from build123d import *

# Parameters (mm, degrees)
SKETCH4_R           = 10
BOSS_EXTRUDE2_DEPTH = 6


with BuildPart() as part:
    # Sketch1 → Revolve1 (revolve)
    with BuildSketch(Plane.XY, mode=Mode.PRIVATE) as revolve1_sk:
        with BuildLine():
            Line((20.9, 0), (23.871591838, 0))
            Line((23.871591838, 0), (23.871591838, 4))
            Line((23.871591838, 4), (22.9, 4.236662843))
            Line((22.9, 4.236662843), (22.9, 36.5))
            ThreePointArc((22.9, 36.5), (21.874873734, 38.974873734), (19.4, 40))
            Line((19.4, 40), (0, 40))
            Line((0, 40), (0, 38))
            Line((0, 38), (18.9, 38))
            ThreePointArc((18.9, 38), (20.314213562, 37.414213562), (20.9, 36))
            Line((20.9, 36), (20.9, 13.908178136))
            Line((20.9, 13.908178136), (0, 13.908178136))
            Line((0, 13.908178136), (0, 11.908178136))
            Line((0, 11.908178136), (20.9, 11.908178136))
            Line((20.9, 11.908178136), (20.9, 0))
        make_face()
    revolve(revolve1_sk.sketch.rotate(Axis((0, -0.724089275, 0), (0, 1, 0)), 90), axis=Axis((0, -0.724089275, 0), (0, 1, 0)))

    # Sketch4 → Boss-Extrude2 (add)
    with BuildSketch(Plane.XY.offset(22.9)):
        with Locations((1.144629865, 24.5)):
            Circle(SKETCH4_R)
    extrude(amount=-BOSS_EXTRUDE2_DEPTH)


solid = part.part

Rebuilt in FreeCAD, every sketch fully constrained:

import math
import FreeCAD as App
import Part
import Sketcher
from FreeCAD import Vector
Q = App.Units.Quantity

doc = App.newDocument("Part")
params = doc.addObject("Spreadsheet::Sheet", "Params")
for row, (alias, value) in enumerate([
    ("sketch1_radius", "2 mm"),
    ("sketch1_radius2", "3.5 mm"),
    ("sketch1_height", "4 mm"),
    ("sketch1_height2", "2 mm"),
    ("sketch1_length", "1 mm"),
    ("revolution_angle", "360 deg"),
    ("sketch2_diameter", "20 mm"),
    ("pad1_length", "6 mm"),
], start=1):
    params.set(f"A{row}", alias)
    params.set(f"B{row}", "=" + value)
    params.setAlias(f"B{row}", alias)

body = doc.addObject("PartDesign::Body", "Body")

sketch1 = doc.addObject("Sketcher::SketchObject", "Sketch")
body.addObject(sketch1)
sketch1.AttachmentSupport = (doc.XY_Plane, [""])
sketch1.MapMode = "FlatFace"
sketch1.addGeometry([
    Part.LineSegment(Vector(20.9, 0, 0), Vector(23.9, 0, 0)),
    Part.LineSegment(Vector(23.9, 0, 0), Vector(23.9, 4, 0)),
    Part.LineSegment(Vector(23.9, 4, 0), Vector(22.9, 4.2, 0)),
    Part.LineSegment(Vector(22.9, 4.2, 0), Vector(22.9, 36.5, 0)),
    Part.ArcOfCircle(Part.Circle(Vector(19.4, 36.5, 0), Vector(0, 0, 1), 3.5), math.radians(0), math.radians(90)),
    Part.LineSegment(Vector(19.4, 40, 0), Vector(0, 40, 0)),
    Part.LineSegment(Vector(0, 40, 0), Vector(0, 38, 0)),
    Part.LineSegment(Vector(0, 38, 0), Vector(18.9, 38, 0)),
    Part.ArcOfCircle(Part.Circle(Vector(18.9, 36, 0), Vector(0, 0, 1), 2), math.radians(0), math.radians(90)),
    Part.LineSegment(Vector(20.9, 36, 0), Vector(20.9, 13.9, 0)),
    Part.LineSegment(Vector(20.9, 13.9, 0), Vector(0, 13.9, 0)),
    Part.LineSegment(Vector(0, 13.9, 0), Vector(0, 11.9, 0)),
    Part.LineSegment(Vector(0, 11.9, 0), Vector(20.9, 11.9, 0)),
    Part.LineSegment(Vector(20.9, 11.9, 0), Vector(20.9, 0, 0)),
], False)
sketch1.addConstraint([
    Sketcher.Constraint("Coincident", 0, 2, 1, 1),
    Sketcher.Constraint("Coincident", 1, 2, 2, 1),
    Sketcher.Constraint("Coincident", 2, 2, 3, 1),
    Sketcher.Constraint("Tangent", 3, 2, 4, 1),
    Sketcher.Constraint("Tangent", 4, 2, 5, 1),
    Sketcher.Constraint("Coincident", 5, 2, 6, 1),
    Sketcher.Constraint("Coincident", 6, 2, 7, 1),
    Sketcher.Constraint("Tangent", 7, 2, 8, 2),
    Sketcher.Constraint("Tangent", 8, 1, 9, 1),
    Sketcher.Constraint("Coincident", 9, 2, 10, 1),
    Sketcher.Constraint("Coincident", 10, 2, 11, 1),
    Sketcher.Constraint("Coincident", 11, 2, 12, 1),
    Sketcher.Constraint("Coincident", 12, 2, 13, 1),
    Sketcher.Constraint("Coincident", 13, 2, 0, 1),
    Sketcher.Constraint("Horizontal", 0),
    Sketcher.Constraint("Vertical", 1),
    Sketcher.Constraint("Vertical", 3),
    Sketcher.Constraint("Horizontal", 5),
    Sketcher.Constraint("Vertical", 6),
    Sketcher.Constraint("Horizontal", 7),
    Sketcher.Constraint("Vertical", 9),
    Sketcher.Constraint("Horizontal", 10),
    Sketcher.Constraint("Vertical", 11),
    Sketcher.Constraint("Horizontal", 12),
    Sketcher.Constraint("Vertical", 13),
    Sketcher.Constraint("PointOnObject", 0, 2, -1),
    Sketcher.Constraint("PointOnObject", 5, 2, -2),
    Sketcher.Constraint("PointOnObject", 10, 2, -2),
    Sketcher.Constraint("Vertical", 9, 2, 12, 2),
    Sketcher.Constraint("Equal", 6, 11),
    Sketcher.Constraint("Radius", 8, Q("2 mm")),
    Sketcher.Constraint("Radius", 4, Q("3.5 mm")),
    Sketcher.Constraint("DistanceY", 1, 1, 1, 2, Q("4 mm")),
    Sketcher.Constraint("DistanceY", 6, 2, 6, 1, Q("2 mm")),
    Sketcher.Constraint("Distance", 2, Q("1 mm")),
    Sketcher.Constraint("DistanceX", 5, 2, 5, 1, Q("19.4 mm")),
    Sketcher.Constraint("DistanceX", 7, 1, 7, 2, Q("18.9 mm")),
    Sketcher.Constraint("DistanceY", -1, 1, 8, 3, Q("36 mm")),
    Sketcher.Constraint("DistanceX", 0, 1, 0, 2, Q("2.971592 mm")),
    Sketcher.Constraint("DistanceY", 9, 2, 9, 1, Q("22.091822 mm")),
])
sketch1.setExpression("Constraints[30]", "Params.sketch1_radius")
sketch1.setExpression("Constraints[31]", "Params.sketch1_radius2")
sketch1.setExpression("Constraints[32]", "Params.sketch1_height")
sketch1.setExpression("Constraints[33]", "Params.sketch1_height2")
sketch1.setExpression("Constraints[34]", "Params.sketch1_length")
revolution = doc.addObject("PartDesign::Revolution", "Revolution")
body.addObject(revolution)
revolution.Profile = sketch1
revolution.ReferenceAxis = (sketch1, ["V_Axis"])
revolution.setExpression("Angle", "Params.revolution_angle")

sketch2 = doc.addObject("Sketcher::SketchObject", "Sketch001")
body.addObject(sketch2)
sketch2.AttachmentSupport = (doc.XY_Plane, [""])
sketch2.MapMode = "FlatFace"
sketch2.AttachmentOffset = App.Placement(Vector(0, 0, 22.9), App.Rotation())
sketch2.addGeometry(Part.Circle(Vector(1, 24, 0), Vector(0, 0, 1), 10), False)
sketch2.addConstraint([
    Sketcher.Constraint("Diameter", 0, Q("20 mm")),
    Sketcher.Constraint("DistanceY", -1, 1, 0, 3, Q("24.5 mm")),
    Sketcher.Constraint("DistanceX", -1, 1, 0, 3, Q("1.14463 mm")),
])
sketch2.setExpression("Constraints[0]", "Params.sketch2_diameter")
pad1 = doc.addObject("PartDesign::Pad", "Pad")
body.addObject(pad1)
pad1.Profile = sketch2
pad1.setExpression("Length", "Params.pad1_length")
pad1.Reversed = True

doc.recompute()
